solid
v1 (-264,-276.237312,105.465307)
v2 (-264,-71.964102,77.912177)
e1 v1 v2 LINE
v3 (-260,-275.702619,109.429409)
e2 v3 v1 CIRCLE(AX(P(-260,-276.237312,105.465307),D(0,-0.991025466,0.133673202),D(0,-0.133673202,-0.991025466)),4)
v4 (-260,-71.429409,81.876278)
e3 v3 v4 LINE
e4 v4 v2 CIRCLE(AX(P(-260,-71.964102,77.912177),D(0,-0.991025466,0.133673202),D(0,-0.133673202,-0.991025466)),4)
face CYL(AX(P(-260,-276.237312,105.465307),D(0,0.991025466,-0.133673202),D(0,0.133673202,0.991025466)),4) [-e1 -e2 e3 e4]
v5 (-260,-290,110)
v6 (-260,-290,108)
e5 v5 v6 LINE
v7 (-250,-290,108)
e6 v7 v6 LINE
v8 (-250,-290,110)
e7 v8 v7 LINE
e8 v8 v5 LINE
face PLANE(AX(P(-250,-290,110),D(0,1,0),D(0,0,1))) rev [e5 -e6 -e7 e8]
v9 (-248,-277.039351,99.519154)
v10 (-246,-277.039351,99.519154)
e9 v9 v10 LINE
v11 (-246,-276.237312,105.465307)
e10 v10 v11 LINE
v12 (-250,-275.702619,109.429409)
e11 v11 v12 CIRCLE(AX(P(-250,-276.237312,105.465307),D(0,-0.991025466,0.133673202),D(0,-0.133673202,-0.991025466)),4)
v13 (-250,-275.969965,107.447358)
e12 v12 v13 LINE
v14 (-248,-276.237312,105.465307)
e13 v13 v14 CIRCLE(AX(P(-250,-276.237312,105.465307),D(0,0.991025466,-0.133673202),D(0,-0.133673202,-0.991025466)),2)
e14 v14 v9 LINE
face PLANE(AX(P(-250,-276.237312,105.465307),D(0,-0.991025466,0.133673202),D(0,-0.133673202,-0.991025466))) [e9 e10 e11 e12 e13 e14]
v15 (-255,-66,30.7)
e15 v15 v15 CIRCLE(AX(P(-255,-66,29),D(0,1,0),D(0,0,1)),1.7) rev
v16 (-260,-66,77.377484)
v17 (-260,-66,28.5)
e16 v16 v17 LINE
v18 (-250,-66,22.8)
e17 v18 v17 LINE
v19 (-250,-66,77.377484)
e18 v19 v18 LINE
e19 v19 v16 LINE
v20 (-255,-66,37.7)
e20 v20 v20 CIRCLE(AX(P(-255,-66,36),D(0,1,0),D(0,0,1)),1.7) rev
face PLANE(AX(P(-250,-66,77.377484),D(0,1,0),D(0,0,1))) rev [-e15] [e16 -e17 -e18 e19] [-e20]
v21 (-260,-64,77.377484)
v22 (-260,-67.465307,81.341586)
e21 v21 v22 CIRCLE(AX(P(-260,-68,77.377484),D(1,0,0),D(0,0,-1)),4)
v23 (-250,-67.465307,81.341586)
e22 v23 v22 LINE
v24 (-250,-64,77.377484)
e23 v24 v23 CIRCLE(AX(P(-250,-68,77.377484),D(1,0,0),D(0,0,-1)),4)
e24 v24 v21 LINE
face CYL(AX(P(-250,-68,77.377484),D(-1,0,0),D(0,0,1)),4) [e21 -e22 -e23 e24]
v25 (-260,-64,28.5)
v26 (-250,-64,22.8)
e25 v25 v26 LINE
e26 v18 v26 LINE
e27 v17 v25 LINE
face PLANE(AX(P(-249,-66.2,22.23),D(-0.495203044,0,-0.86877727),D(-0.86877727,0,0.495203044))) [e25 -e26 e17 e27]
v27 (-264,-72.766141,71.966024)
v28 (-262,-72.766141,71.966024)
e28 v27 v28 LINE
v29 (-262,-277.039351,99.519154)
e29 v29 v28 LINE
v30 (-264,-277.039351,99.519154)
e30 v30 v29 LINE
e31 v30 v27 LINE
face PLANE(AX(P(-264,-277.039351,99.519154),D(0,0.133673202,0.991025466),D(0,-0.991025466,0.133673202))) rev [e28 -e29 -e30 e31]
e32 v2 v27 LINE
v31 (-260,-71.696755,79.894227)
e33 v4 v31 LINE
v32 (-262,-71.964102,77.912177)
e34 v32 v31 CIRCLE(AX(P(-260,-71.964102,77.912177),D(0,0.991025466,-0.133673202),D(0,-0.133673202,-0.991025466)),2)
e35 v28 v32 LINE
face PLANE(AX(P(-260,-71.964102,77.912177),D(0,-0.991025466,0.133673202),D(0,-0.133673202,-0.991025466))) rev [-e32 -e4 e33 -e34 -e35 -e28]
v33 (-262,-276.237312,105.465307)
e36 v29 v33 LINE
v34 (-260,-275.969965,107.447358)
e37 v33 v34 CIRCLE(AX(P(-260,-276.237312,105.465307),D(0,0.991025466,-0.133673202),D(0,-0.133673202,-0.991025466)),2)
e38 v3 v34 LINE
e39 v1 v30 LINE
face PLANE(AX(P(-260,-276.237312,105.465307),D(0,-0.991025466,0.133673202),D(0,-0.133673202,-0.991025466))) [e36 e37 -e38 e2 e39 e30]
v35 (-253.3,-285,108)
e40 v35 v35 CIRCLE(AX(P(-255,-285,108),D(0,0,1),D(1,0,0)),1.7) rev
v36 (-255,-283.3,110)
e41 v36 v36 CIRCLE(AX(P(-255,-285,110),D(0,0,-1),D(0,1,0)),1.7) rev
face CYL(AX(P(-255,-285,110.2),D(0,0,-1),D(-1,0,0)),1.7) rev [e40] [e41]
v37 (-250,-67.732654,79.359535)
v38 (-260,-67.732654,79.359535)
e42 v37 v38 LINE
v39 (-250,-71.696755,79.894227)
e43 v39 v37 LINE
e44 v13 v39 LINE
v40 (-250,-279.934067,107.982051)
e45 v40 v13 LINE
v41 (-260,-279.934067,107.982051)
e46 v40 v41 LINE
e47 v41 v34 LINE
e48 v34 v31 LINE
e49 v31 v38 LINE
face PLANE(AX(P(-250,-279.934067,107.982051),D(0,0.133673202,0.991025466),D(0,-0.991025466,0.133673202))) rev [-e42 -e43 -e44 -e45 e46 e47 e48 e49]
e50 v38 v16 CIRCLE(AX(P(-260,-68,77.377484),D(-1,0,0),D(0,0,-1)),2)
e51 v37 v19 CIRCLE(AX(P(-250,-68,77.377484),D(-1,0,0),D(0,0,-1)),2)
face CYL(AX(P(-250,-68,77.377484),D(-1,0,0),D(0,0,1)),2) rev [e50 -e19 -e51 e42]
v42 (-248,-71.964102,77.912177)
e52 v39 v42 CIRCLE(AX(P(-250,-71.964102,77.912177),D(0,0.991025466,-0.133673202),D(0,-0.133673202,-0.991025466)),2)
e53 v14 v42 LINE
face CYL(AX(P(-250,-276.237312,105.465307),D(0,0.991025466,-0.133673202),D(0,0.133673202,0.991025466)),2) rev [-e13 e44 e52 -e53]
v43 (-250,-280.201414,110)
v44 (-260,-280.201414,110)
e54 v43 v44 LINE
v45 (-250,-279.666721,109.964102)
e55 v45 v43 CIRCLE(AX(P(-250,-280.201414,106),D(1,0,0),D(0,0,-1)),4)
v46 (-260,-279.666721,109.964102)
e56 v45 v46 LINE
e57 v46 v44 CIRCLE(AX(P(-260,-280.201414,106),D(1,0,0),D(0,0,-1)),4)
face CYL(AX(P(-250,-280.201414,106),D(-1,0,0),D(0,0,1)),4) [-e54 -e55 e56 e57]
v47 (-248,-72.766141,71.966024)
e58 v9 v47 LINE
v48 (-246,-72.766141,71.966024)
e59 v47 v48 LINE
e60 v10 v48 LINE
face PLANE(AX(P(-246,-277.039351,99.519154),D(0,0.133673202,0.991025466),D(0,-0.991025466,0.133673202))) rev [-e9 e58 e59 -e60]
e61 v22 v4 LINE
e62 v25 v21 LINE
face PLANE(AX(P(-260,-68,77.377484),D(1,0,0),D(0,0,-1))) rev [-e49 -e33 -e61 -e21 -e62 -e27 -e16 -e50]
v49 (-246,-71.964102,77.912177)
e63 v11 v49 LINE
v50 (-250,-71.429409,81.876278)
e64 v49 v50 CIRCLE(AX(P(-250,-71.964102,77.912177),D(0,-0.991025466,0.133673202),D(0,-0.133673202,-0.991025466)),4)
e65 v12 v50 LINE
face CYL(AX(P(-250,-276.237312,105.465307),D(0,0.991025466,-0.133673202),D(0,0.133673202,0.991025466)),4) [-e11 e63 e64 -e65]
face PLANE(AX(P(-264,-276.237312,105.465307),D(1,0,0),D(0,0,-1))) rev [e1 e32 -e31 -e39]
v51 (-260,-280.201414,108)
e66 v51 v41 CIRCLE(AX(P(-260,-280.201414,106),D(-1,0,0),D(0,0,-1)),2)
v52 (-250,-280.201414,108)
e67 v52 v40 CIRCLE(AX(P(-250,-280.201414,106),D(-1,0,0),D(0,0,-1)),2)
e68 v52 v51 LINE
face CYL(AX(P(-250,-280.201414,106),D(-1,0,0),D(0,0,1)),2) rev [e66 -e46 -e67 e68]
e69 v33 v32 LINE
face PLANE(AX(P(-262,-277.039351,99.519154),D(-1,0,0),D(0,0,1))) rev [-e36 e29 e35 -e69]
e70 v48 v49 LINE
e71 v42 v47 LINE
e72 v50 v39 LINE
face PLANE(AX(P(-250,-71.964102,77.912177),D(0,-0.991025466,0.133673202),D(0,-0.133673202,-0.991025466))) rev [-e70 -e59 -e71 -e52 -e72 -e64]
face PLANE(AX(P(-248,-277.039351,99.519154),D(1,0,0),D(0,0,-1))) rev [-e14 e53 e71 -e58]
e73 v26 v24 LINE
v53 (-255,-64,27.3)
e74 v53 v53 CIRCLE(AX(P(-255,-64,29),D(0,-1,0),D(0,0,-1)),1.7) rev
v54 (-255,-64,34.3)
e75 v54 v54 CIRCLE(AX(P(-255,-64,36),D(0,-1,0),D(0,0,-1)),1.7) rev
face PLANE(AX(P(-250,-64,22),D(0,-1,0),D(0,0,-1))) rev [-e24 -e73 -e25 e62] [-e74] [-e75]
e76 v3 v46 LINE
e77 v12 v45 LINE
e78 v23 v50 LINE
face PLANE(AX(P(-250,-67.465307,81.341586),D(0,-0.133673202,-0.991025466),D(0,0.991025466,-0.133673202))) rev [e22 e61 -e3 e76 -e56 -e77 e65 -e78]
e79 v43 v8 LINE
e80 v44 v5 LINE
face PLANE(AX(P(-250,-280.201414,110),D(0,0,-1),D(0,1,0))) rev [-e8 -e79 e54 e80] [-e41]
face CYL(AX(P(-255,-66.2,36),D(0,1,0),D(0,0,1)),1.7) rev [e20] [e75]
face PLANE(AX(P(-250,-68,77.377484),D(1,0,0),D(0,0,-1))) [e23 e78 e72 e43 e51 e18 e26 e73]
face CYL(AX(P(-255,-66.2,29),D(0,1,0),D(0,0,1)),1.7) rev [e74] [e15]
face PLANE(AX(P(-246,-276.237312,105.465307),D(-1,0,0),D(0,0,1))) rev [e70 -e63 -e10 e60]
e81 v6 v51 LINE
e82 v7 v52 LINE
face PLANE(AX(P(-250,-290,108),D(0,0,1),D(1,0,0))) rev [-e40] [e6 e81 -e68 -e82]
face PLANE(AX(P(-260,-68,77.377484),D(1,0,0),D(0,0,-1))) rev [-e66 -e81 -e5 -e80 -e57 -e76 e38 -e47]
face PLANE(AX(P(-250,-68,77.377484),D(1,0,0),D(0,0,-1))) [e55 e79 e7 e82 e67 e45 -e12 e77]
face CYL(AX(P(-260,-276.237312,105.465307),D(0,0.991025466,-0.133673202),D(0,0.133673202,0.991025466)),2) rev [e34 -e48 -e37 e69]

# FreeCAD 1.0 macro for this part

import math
import FreeCAD as App
import Part
import Sketcher
from FreeCAD import Vector


def add_polygon(sketch, points):
    """Adds a closed chain of lines whose ends are joined by coincident constraints."""
    first, n = sketch.GeometryCount, len(points)
    for a, b in zip(points, points[1:] + points[:1]):
        sketch.addGeometry(Part.LineSegment(App.Vector(*a, 0), App.Vector(*b, 0)), False)
    for i in range(n):
        sketch.addConstraint(Sketcher.Constraint("Coincident", first + i, 2, first + (i + 1) % n, 1))

doc = App.newDocument("Part")
body = doc.addObject("PartDesign::Body", "Body")

# Sketch on YZ plane
sketch1 = doc.addObject("Sketcher::SketchObject", "Sketch")
body.addObject(sketch1)
sketch1.AttachmentSupport = (doc.YZ_Plane, [""])
sketch1.MapMode = "FlatFace"
sketch1.AttachmentOffset = App.Placement(Vector(0, 0, -260), App.Rotation())
sketch1.addGeometry([
    Part.LineSegment(Vector(-64, 22, 0), Vector(-64, 77.377484, 0)),  # 0
    Part.ArcOfCircle(Part.Circle(Vector(-68, 77.377484, 0), Vector(0, 0, 1), 4), math.radians(0), math.radians(82.318095)),  # 1
    Part.LineSegment(Vector(-67.465307, 81.341586, 0), Vector(-279.666721, 109.964102, 0)),  # 2
    Part.ArcOfCircle(Part.Circle(Vector(-280.201414, 106, 0), Vector(0, 0, 1), 4), math.radians(82.318095), math.radians(90)),  # 3
    Part.LineSegment(Vector(-280.201414, 110, 0), Vector(-290, 110, 0)),  # 4
    Part.LineSegment(Vector(-290, 110, 0), Vector(-290, 108, 0)),  # 5
    Part.LineSegment(Vector(-290, 108, 0), Vector(-280.201414, 108, 0)),  # 6
    Part.ArcOfCircle(Part.Circle(Vector(-280.201414, 106, 0), Vector(0, 0, 1), 2), math.radians(82.318096), math.radians(90)),  # 7
    Part.LineSegment(Vector(-279.934067, 107.982051, 0), Vector(-67.732654, 79.359535, 0)),  # 8
    Part.ArcOfCircle(Part.Circle(Vector(-68, 77.377484, 0), Vector(0, 0, 1), 2), math.radians(0), math.radians(82.318095)),  # 9
    Part.LineSegment(Vector(-66, 77.377484, 0), Vector(-66, 22, 0)),  # 10
    Part.LineSegment(Vector(-66, 22, 0), Vector(-64, 22, 0)),  # 11
], False)
sketch1.addConstraint([
    Sketcher.Constraint("Tangent", 0, 2, 1, 1),
    Sketcher.Constraint("Tangent", 1, 2, 2, 1),
    Sketcher.Constraint("Tangent", 2, 2, 3, 1),
    Sketcher.Constraint("Tangent", 3, 2, 4, 1),
    Sketcher.Constraint("Coincident", 4, 2, 5, 1),
    Sketcher.Constraint("Coincident", 5, 2, 6, 1),
    Sketcher.Constraint("Tangent", 6, 2, 7, 2),
    Sketcher.Constraint("Tangent", 7, 1, 8, 1),
    Sketcher.Constraint("Tangent", 8, 2, 9, 2),
    Sketcher.Constraint("Tangent", 9, 1, 10, 1),
    Sketcher.Constraint("Coincident", 10, 2, 11, 1),
    Sketcher.Constraint("Coincident", 11, 2, 0, 1),
    Sketcher.Constraint("Vertical", 0),
    Sketcher.Constraint("Horizontal", 4),
    Sketcher.Constraint("Vertical", 5),
    Sketcher.Constraint("Horizontal", 6),
    Sketcher.Constraint("Vertical", 10),
    Sketcher.Constraint("Horizontal", 11),
    Sketcher.Constraint("Coincident", 7, 3, 3, 3),
    Sketcher.Constraint("Coincident", 9, 3, 1, 3),
    Sketcher.Constraint("Equal", 1, 3),
    Sketcher.Constraint("Equal", 7, 9),
    Sketcher.Constraint("Radius", 1, 4.0),
    Sketcher.Constraint("Radius", 7, 2.0),
    Sketcher.Constraint("DistanceX", 1, 3, -1, 1, 68.0),
    Sketcher.Constraint("DistanceY", -1, 1, 3, 3, 106.0),
    Sketcher.Constraint("DistanceX", 4, 2, -1, 1, 290.0),
    Sketcher.Constraint("DistanceY", -1, 1, 10, 2, 22.0),
    Sketcher.Constraint("Distance", 2, 214.123068),
    Sketcher.Constraint("DistanceX", 4, 2, 4, 1, 9.798586),
])
pad1 = doc.addObject("PartDesign::Pad", "Pad")
body.addObject(pad1)
pad1.Profile = sketch1
pad1.Length = 10

# Sketch on an angled plane
sketch2 = doc.addObject("Sketcher::SketchObject", "Sketch001")
body.addObject(sketch2)
sketch2.Placement = App.Placement(Vector(0, -80.999512, 10.925516), App.Rotation(Vector(-1, 0, 0), Vector(0, -0.133673202, -0.991025466), Vector(0, -0.991025466, 0.133673202), "ZXY"))
sketch2.addGeometry([
    Part.LineSegment(Vector(264, -67.593279, 0), Vector(264, -61.593279, 0)),  # 0
    Part.LineSegment(Vector(264, -61.593279, 0), Vector(262, -61.593279, 0)),  # 1
    Part.LineSegment(Vector(262, -61.593279, 0), Vector(262, -67.593279, 0)),  # 2
    Part.ArcOfCircle(Part.Circle(Vector(260, -67.593279, 0), Vector(0, 0, 1), 2), math.radians(-90), math.radians(0)),  # 3
    Part.LineSegment(Vector(260, -69.593279, 0), Vector(259.9, -69.593279, 0)),  # 4
    Part.LineSegment(Vector(259.9, -69.593279, 0), Vector(259.9, -71.593279, 0)),  # 5
    Part.LineSegment(Vector(259.9, -71.593279, 0), Vector(260, -71.593279, 0)),  # 6
    Part.ArcOfCircle(Part.Circle(Vector(260, -67.593279, 0), Vector(0, 0, 1), 4), math.radians(-90), math.radians(0)),  # 7
    Part.LineSegment(Vector(246, -61.593279, 0), Vector(246, -67.593279, 0)),  # 8
    Part.ArcOfCircle(Part.Circle(Vector(250, -67.593279, 0), Vector(0, 0, 1), 4), math.radians(180), math.radians(270)),  # 9
    Part.LineSegment(Vector(250, -71.593279, 0), Vector(250.1, -71.593279, 0)),  # 10
    Part.LineSegment(Vector(250.1, -71.593279, 0), Vector(250.1, -69.593279, 0)),  # 11
    Part.LineSegment(Vector(250.1, -69.593279, 0), Vector(250, -69.593279, 0)),  # 12
    Part.ArcOfCircle(Part.Circle(Vector(250, -67.593279, 0), Vector(0, 0, 1), 2), math.radians(180), math.radians(270)),  # 13
    Part.LineSegment(Vector(248, -67.593279, 0), Vector(248, -61.593279, 0)),  # 14
    Part.LineSegment(Vector(248, -61.593279, 0), Vector(246, -61.593279, 0)),  # 15
], False)
sketch2.addConstraint([
    Sketcher.Constraint("Coincident", 0, 2, 1, 1),
    Sketcher.Constraint("Coincident", 1, 2, 2, 1),
    Sketcher.Constraint("Tangent", 2, 2, 3, 2),
    Sketcher.Constraint("Tangent", 3, 1, 4, 1),
    Sketcher.Constraint("Coincident", 4, 2, 5, 1),
    Sketcher.Constraint("Coincident", 5, 2, 6, 1),
    Sketcher.Constraint("Tangent", 6, 2, 7, 1),
    Sketcher.Constraint("Tangent", 7, 2, 0, 1),
    Sketcher.Constraint("Tangent", 8, 2, 9, 1),
    Sketcher.Constraint("Tangent", 9, 2, 10, 1),
    Sketcher.Constraint("Coincident", 10, 2, 11, 1),
    Sketcher.Constraint("Coincident", 11, 2, 12, 1),
    Sketcher.Constraint("Tangent", 12, 2, 13, 2),
    Sketcher.Constraint("Tangent", 13, 1, 14, 1),
    Sketcher.Constraint("Coincident", 14, 2, 15, 1),
    Sketcher.Constraint("Coincident", 15, 2, 8, 1),
    Sketcher.Constraint("Vertical", 0),
    Sketcher.Constraint("Horizontal", 1),
    Sketcher.Constraint("Vertical", 2),
    Sketcher.Constraint("Horizontal", 4),
    Sketcher.Constraint("Vertical", 5),
    Sketcher.Constraint("Horizontal", 6),
    Sketcher.Constraint("Vertical", 8),
    Sketcher.Constraint("Horizontal", 10),
    Sketcher.Constraint("Vertical", 11),
    Sketcher.Constraint("Horizontal", 12),
    Sketcher.Constraint("Vertical", 14),
    Sketcher.Constraint("Horizontal", 15),
    Sketcher.Constraint("Coincident", 7, 3, 3, 3),
    Sketcher.Constraint("Coincident", 13, 3, 9, 3),
    Sketcher.Constraint("Equal", 7, 9),
    Sketcher.Constraint("Equal", 3, 13),
    Sketcher.Constraint("Horizontal", 7, 3, 9, 3),
    Sketcher.Constraint("Horizontal", 1, 2, 14, 2),
    Sketcher.Constraint("Equal", 6, 10),
    Sketcher.Constraint("Radius", 3, 2.0),
    Sketcher.Constraint("Radius", 7, 4.0),
    Sketcher.Constraint("DistanceY", 0, 1, 0, 2, 6.0),
    Sketcher.Constraint("DistanceX", 4, 2, 4, 1, 0.1),
    Sketcher.Constraint("DistanceX", -1, 1, 3, 3, 260.0),
    Sketcher.Constraint("DistanceX", -1, 1, 9, 3, 250.0),
    Sketcher.Constraint("DistanceY", 3, 3, -1, 1, 67.593279),
])
pad2 = doc.addObject("PartDesign::Pad", "Pad001")
body.addObject(pad2)
pad2.Profile = sketch2
pad2.Length = 206.123068

# Sketch on XZ plane
sketch3 = doc.addObject("Sketcher::SketchObject", "Sketch002")
body.addObject(sketch3)
sketch3.AttachmentSupport = (doc.XZ_Plane, [""])
sketch3.MapMode = "FlatFace"
sketch3.AttachmentOffset = App.Placement(Vector(0, 0, 63.8), App.Rotation())
sketch3.addGeometry([
    Part.Circle(Vector(-255, 29, 0), Vector(0, 0, 1), 1.7),
    Part.Circle(Vector(-255, 36, 0), Vector(0, 0, 1), 1.7),
], False)
sketch3.addConstraint([
    Sketcher.Constraint("Equal", 0, 1),
    Sketcher.Constraint("Vertical", 0, 3, 1, 3),
    Sketcher.Constraint("Diameter", 0, 3.4),
    Sketcher.Constraint("DistanceX", 0, 3, -1, 1, 255.0),
    Sketcher.Constraint("DistanceY", -1, 1, 0, 3, 29.0),
    Sketcher.Constraint("DistanceY", -1, 1, 1, 3, 36.0),
])
pocket1 = doc.addObject("PartDesign::Pocket", "Pocket")
body.addObject(pocket1)
pocket1.Profile = sketch3
pocket1.Length = 2.4
pocket1.Reversed = True

# Sketch on XY plane
sketch4 = doc.addObject("Sketcher::SketchObject", "Sketch003")
body.addObject(sketch4)
sketch4.AttachmentSupport = (doc.XY_Plane, [""])
sketch4.MapMode = "FlatFace"
sketch4.AttachmentOffset = App.Placement(Vector(0, 0, 107.8), App.Rotation())
sketch4.addGeometry(Part.Circle(Vector(-255, -285, 0), Vector(0, 0, 1), 1.7), False)
sketch4.addConstraint([
    Sketcher.Constraint("Diameter", 0, 3.4),
    Sketcher.Constraint("DistanceX", 0, 3, -1, 1, 255.0),
    Sketcher.Constraint("DistanceY", 0, 3, -1, 1, 285.0),
])
pocket2 = doc.addObject("PartDesign::Pocket", "Pocket001")
body.addObject(pocket2)
pocket2.Profile = sketch4
pocket2.Length = 2.4
pocket2.Reversed = True

# Sketch on XZ plane
sketch5 = doc.addObject("Sketcher::SketchObject", "Sketch004")
body.addObject(sketch5)
sketch5.AttachmentSupport = (doc.XZ_Plane, [""])
sketch5.MapMode = "FlatFace"
sketch5.AttachmentOffset = App.Placement(Vector(0, 0, 63.8), App.Rotation())
add_polygon(sketch5, [(-261, 20), (-249, 20), (-249, 22.23), (-261, 29.07)])  # lines 0-3
sketch5.addConstraint([
    Sketcher.Constraint("Horizontal", 0),
    Sketcher.Constraint("Vertical", 1),
    Sketcher.Constraint("Vertical", 3),
    Sketcher.Constraint("DistanceX", 0, 1, 0, 2, 12.0),
    Sketcher.Constraint("DistanceX", 0, 2, -1, 1, 249.0),
    Sketcher.Constraint("DistanceY", -1, 1, 0, 2, 20.0),
    Sketcher.Constraint("DistanceY", 1, 1, 1, 2, 2.23),
    Sketcher.Constraint("DistanceY", 3, 2, 3, 1, 9.07),
])
pocket3 = doc.addObject("PartDesign::Pocket", "Pocket002")
body.addObject(pocket3)
pocket3.Profile = sketch5
pocket3.Length = 2.4
pocket3.Reversed = True

doc.recompute()
